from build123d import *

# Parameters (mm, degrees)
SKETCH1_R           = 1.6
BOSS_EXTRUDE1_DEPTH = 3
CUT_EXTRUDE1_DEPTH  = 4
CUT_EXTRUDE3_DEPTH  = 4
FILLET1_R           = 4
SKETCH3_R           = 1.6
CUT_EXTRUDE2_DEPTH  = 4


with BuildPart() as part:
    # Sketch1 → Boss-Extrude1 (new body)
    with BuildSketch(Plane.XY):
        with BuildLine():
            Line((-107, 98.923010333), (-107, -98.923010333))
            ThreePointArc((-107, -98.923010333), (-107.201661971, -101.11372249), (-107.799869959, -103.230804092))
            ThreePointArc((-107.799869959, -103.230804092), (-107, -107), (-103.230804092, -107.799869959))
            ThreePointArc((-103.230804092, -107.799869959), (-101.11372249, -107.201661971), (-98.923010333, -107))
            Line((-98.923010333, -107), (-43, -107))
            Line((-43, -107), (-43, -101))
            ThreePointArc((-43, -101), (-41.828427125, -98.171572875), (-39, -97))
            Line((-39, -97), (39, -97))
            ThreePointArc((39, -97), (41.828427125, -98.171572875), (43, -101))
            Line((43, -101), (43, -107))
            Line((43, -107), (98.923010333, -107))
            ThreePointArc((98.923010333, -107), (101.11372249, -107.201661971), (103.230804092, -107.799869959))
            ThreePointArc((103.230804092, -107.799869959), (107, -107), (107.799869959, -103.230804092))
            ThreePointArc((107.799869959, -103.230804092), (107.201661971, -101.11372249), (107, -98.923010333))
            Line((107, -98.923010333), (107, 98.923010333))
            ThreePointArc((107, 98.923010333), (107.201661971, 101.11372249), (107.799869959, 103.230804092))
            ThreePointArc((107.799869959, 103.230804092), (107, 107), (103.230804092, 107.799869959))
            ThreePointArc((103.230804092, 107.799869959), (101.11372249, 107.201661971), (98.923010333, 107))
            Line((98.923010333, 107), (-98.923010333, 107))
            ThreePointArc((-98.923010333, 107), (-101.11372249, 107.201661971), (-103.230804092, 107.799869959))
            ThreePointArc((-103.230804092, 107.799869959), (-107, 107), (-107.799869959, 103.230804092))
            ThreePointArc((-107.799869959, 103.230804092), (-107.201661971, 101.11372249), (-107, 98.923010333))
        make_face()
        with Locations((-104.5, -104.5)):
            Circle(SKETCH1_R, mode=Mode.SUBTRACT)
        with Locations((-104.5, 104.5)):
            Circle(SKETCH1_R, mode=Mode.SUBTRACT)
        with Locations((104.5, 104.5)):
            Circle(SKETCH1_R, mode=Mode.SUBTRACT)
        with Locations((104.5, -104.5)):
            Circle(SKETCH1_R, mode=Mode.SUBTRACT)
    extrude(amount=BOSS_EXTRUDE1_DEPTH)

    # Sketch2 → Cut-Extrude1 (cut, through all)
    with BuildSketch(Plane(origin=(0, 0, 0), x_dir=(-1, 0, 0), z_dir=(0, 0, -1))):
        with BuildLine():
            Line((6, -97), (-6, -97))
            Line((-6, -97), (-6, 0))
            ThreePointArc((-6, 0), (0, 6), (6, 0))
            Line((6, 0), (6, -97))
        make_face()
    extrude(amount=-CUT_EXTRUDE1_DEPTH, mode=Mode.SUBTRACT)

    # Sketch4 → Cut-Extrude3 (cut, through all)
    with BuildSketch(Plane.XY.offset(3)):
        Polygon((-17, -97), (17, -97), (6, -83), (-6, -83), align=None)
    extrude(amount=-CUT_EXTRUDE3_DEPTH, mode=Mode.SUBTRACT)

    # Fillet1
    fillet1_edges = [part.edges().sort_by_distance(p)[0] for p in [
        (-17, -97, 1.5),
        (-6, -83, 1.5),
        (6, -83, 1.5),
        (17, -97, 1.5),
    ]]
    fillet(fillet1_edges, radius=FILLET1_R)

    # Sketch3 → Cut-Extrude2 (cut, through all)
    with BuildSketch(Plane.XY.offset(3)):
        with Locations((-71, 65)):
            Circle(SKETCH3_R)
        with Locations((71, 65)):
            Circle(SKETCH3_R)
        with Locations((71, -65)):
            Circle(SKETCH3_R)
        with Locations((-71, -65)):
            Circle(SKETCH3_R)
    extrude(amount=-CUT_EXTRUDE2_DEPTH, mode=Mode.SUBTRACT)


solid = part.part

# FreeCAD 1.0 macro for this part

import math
import FreeCAD as App
import Part
import Sketcher
from FreeCAD import Vector


def edges_at(feature, points):
    """Names of the edges that pass closest to the given points."""
    edges = feature.Shape.Edges
    near = lambda p: min(range(len(edges)), key=lambda i: edges[i].distToShape(Part.Vertex(*p))[0])
    return sorted({f"Edge{near(p) + 1}" for p in points})

doc = App.newDocument("Part")
body = doc.addObject("PartDesign::Body", "Body")

sketch1 = doc.addObject("Sketcher::SketchObject", "Sketch")
body.addObject(sketch1)
sketch1.AttachmentSupport = (doc.XY_Plane, [""])
sketch1.MapMode = "FlatFace"
sketch1.addGeometry(Part.LineSegment(Vector(-107, 98.9, 0), Vector(-107, -98.9, 0)), False)
sketch1.addGeometry(Part.ArcOfCircle(Part.Circle(Vector(-119, -98.9, 0), Vector(0, 0, 1), 12), math.radians(-21), math.radians(0)), False)
sketch1.addGeometry(Part.ArcOfCircle(Part.Circle(Vector(-104.5, -104.5, 0), Vector(0, 0, 1), 3.5), math.radians(159), math.radians(291)), False)
sketch1.addGeometry(Part.ArcOfCircle(Part.Circle(Vector(-98.9, -119, 0), Vector(0, 0, 1), 12), math.radians(90), math.radians(111)), False)
sketch1.addGeometry(Part.LineSegment(Vector(-98.9, -107, 0), Vector(-43, -107, 0)), False)
sketch1.addGeometry(Part.LineSegment(Vector(-43, -107, 0), Vector(-43, -101, 0)), False)
sketch1.addGeometry(Part.ArcOfCircle(Part.Circle(Vector(-39, -101, 0), Vector(0, 0, 1), 4), math.radians(90), math.radians(180)), False)
sketch1.addGeometry(Part.LineSegment(Vector(-39, -97, 0), Vector(39, -97, 0)), False)
sketch1.addGeometry(Part.ArcOfCircle(Part.Circle(Vector(39, -101, 0), Vector(0, 0, 1), 4), math.radians(0), math.radians(90)), False)
sketch1.addGeometry(Part.LineSegment(Vector(43, -101, 0), Vector(43, -107, 0)), False)
sketch1.addGeometry(Part.LineSegment(Vector(43, -107, 0), Vector(98.9, -107, 0)), False)
sketch1.addGeometry(Part.ArcOfCircle(Part.Circle(Vector(98.9, -119, 0), Vector(0, 0, 1), 12), math.radians(69), math.radians(90)), False)
sketch1.addGeometry(Part.ArcOfCircle(Part.Circle(Vector(104.5, -104.5, 0), Vector(0, 0, 1), 3.5), math.radians(-111), math.radians(21)), False)
sketch1.addGeometry(Part.ArcOfCircle(Part.Circle(Vector(119, -98.9, 0), Vector(0, 0, 1), 12), math.radians(180), math.radians(201)), False)
sketch1.addGeometry(Part.LineSegment(Vector(107, -98.9, 0), Vector(107, 98.9, 0)), False)
sketch1.addGeometry(Part.ArcOfCircle(Part.Circle(Vector(119, 98.9, 0), Vector(0, 0, 1), 12), math.radians(159), math.radians(180)), False)
sketch1.addGeometry(Part.ArcOfCircle(Part.Circle(Vector(104.5, 104.5, 0), Vector(0, 0, 1), 3.5), math.radians(-21), math.radians(111)), False)
sketch1.addGeometry(Part.ArcOfCircle(Part.Circle(Vector(98.9, 119, 0), Vector(0, 0, 1), 12), math.radians(-90), math.radians(-69)), False)
sketch1.addGeometry(Part.LineSegment(Vector(98.9, 107, 0), Vector(-98.9, 107, 0)), False)
sketch1.addGeometry(Part.ArcOfCircle(Part.Circle(Vector(-98.9, 119, 0), Vector(0, 0, 1), 12), math.radians(-111), math.radians(-90)), False)
sketch1.addGeometry(Part.ArcOfCircle(Part.Circle(Vector(-104.5, 104.5, 0), Vector(0, 0, 1), 3.5), math.radians(69), math.radians(201)), False)
sketch1.addGeometry(Part.ArcOfCircle(Part.Circle(Vector(-119, 98.9, 0), Vector(0, 0, 1), 12), math.radians(0), math.radians(21)), False)
sketch1.addGeometry(Part.Circle(Vector(-104.5, -104.5, 0), Vector(0, 0, 1), 1.6), False)
sketch1.addGeometry(Part.Circle(Vector(104.5, -104.5, 0), Vector(0, 0, 1), 1.6), False)
sketch1.addGeometry(Part.Circle(Vector(-104.5, 104.5, 0), Vector(0, 0, 1), 1.6), False)
sketch1.addGeometry(Part.Circle(Vector(104.5, 104.5, 0), Vector(0, 0, 1), 1.6), False)
sketch1.addConstraint(Sketcher.Constraint("Tangent", 0, 2, 1, 2))
sketch1.addConstraint(Sketcher.Constraint("Tangent", 1, 1, 2, 1))
sketch1.addConstraint(Sketcher.Constraint("Tangent", 2, 2, 3, 2))
sketch1.addConstraint(Sketcher.Constraint("Tangent", 3, 1, 4, 1))
sketch1.addConstraint(Sketcher.Constraint("Coincident", 4, 2, 5, 1))
sketch1.addConstraint(Sketcher.Constraint("Tangent", 5, 2, 6, 2))
sketch1.addConstraint(Sketcher.Constraint("Tangent", 6, 1, 7, 1))
sketch1.addConstraint(Sketcher.Constraint("Tangent", 7, 2, 8, 2))
sketch1.addConstraint(Sketcher.Constraint("Tangent", 8, 1, 9, 1))
sketch1.addConstraint(Sketcher.Constraint("Coincident", 9, 2, 10, 1))
sketch1.addConstraint(Sketcher.Constraint("Tangent", 10, 2, 11, 2))
sketch1.addConstraint(Sketcher.Constraint("Tangent", 11, 1, 12, 1))
sketch1.addConstraint(Sketcher.Constraint("Tangent", 12, 2, 13, 2))
sketch1.addConstraint(Sketcher.Constraint("Tangent", 13, 1, 14, 1))
sketch1.addConstraint(Sketcher.Constraint("Tangent", 14, 2, 15, 2))
sketch1.addConstraint(Sketcher.Constraint("Tangent", 15, 1, 16, 1))
sketch1.addConstraint(Sketcher.Constraint("Tangent", 16, 2, 17, 2))
sketch1.addConstraint(Sketcher.Constraint("Tangent", 17, 1, 18, 1))
sketch1.addConstraint(Sketcher.Constraint("Tangent", 18, 2, 19, 2))
sketch1.addConstraint(Sketcher.Constraint("Tangent", 19, 1, 20, 1))
sketch1.addConstraint(Sketcher.Constraint("Tangent", 20, 2, 21, 2))
sketch1.addConstraint(Sketcher.Constraint("Tangent", 21, 1, 0, 1))
sketch1.addConstraint(Sketcher.Constraint("Vertical", 0))
sketch1.addConstraint(Sketcher.Constraint("Horizontal", 4))
sketch1.addConstraint(Sketcher.Constraint("Vertical", 5))
sketch1.addConstraint(Sketcher.Constraint("Horizontal", 7))
sketch1.addConstraint(Sketcher.Constraint("Vertical", 9))
sketch1.addConstraint(Sketcher.Constraint("Horizontal", 10))
sketch1.addConstraint(Sketcher.Constraint("Vertical", 14))
sketch1.addConstraint(Sketcher.Constraint("Horizontal", 18))
sketch1.addConstraint(Sketcher.Constraint("Coincident", 22, 3, 2, 3))
sketch1.addConstraint(Sketcher.Constraint("Coincident", 23, 3, 12, 3))
sketch1.addConstraint(Sketcher.Constraint("Coincident", 24, 3, 20, 3))
sketch1.addConstraint(Sketcher.Constraint("Coincident", 25, 3, 16, 3))
sketch1.addConstraint(Sketcher.Constraint("Equal", 1, 3))
sketch1.addConstraint(Sketcher.Constraint("Equal", 6, 8))
sketch1.addConstraint(Sketcher.Constraint("Equal", 3, 11))
sketch1.addConstraint(Sketcher.Constraint("Equal", 2, 12))
sketch1.addConstraint(Sketcher.Constraint("Equal", 11, 13))
sketch1.addConstraint(Sketcher.Constraint("Equal", 13, 15))
sketch1.addConstraint(Sketcher.Constraint("Equal", 12, 16))
sketch1.addConstraint(Sketcher.Constraint("Equal", 15, 17))
sketch1.addConstraint(Sketcher.Constraint("Equal", 17, 19))
sketch1.addConstraint(Sketcher.Constraint("Equal", 16, 20))
sketch1.addConstraint(Sketcher.Constraint("Equal", 19, 21))
sketch1.addConstraint(Sketcher.Constraint("Equal", 22, 23))
sketch1.addConstraint(Sketcher.Constraint("Equal", 23, 24))
sketch1.addConstraint(Sketcher.Constraint("Equal", 24, 25))
sketch1.addConstraint(Sketcher.Constraint("Symmetric", 1, 3, 15, 3, -1, 1))
sketch1.addConstraint(Sketcher.Constraint("Symmetric", 3, 3, 17, 3, -1, 1))
sketch1.addConstraint(Sketcher.Constraint("Symmetric", 11, 3, 19, 3, -1, 1))
sketch1.addConstraint(Sketcher.Constraint("Symmetric", 2, 3, 12, 3, -2))
sketch1.addConstraint(Sketcher.Constraint("Horizontal", 16, 3, 20, 3))
sketch1.addConstraint(Sketcher.Constraint("Equal", 4, 10))
sketch1.addConstraint(Sketcher.Constraint("Equal", 18, 0))
sketch1.addConstraint(Sketcher.Constraint("Radius", 1, 12.0))
sketch1.addConstraint(Sketcher.Constraint("Radius", 6, 4.0))
sketch1.addConstraint(Sketcher.Constraint("Diameter", 22, 3.2))
sketch1.addConstraint(Sketcher.Constraint("DistanceX", 7, 1, 7, 2, 78.0))
sketch1.addConstraint(Sketcher.Constraint("DistanceY", 5, 1, 5, 2, 6.0))
sketch1.addConstraint(Sketcher.Constraint("DistanceX", 1, 3, -1, 1, 119.0))
sketch1.addConstraint(Sketcher.Constraint("DistanceY", 3, 3, -1, 1, 119.0))
sketch1.addConstraint(Sketcher.Constraint("DistanceX", 2, 3, 12, 3, 209.0))
sketch1.addConstraint(Sketcher.Constraint("Radius", 2, 3.535534))
pad1 = doc.addObject("PartDesign::Pad", "Pad")
body.addObject(pad1)
pad1.Profile = sketch1
pad1.Length = 3

sketch2 = doc.addObject("Sketcher::SketchObject", "Sketch001")
body.addObject(sketch2)
sketch2.AttachmentSupport = (doc.XY_Plane, [""])
sketch2.MapMode = "FlatFace"
sketch2.addGeometry(Part.LineSegment(Vector(6, -97, 0), Vector(-6, -97, 0)), False)
sketch2.addGeometry(Part.LineSegment(Vector(-6, -97, 0), Vector(-6, 0, 0)), False)
sketch2.addGeometry(Part.ArcOfCircle(Part.Circle(Vector(0, 0, 0), Vector(0, 0, 1), 6), math.radians(0), math.radians(180)), False)
sketch2.addGeometry(Part.LineSegment(Vector(6, 0, 0), Vector(6, -97, 0)), False)
sketch2.addConstraint(Sketcher.Constraint("Coincident", 0, 2, 1, 1))
sketch2.addConstraint(Sketcher.Constraint("Tangent", 1, 2, 2, 2))
sketch2.addConstraint(Sketcher.Constraint("Tangent", 2, 1, 3, 1))
sketch2.addConstraint(Sketcher.Constraint("Coincident", 3, 2, 0, 1))
sketch2.addConstraint(Sketcher.Constraint("Horizontal", 0))
sketch2.addConstraint(Sketcher.Constraint("Vertical", 1))
sketch2.addConstraint(Sketcher.Constraint("Vertical", 3))
sketch2.addConstraint(Sketcher.Constraint("Coincident", 2, 3, -1, 1))
sketch2.addConstraint(Sketcher.Constraint("Radius", 2, 6.0))
sketch2.addConstraint(Sketcher.Constraint("DistanceY", 1, 1, 1, 2, 97.0))
pocket1 = doc.addObject("PartDesign::Pocket", "Pocket")
body.addObject(pocket1)
pocket1.Profile = sketch2
pocket1.Type = "ThroughAll"
pocket1.Reversed = True

sketch3 = doc.addObject("Sketcher::SketchObject", "Sketch002")
body.addObject(sketch3)
sketch3.AttachmentSupport = (doc.XY_Plane, [""])
sketch3.MapMode = "FlatFace"
sketch3.AttachmentOffset = App.Placement(Vector(0, 0, 3), App.Rotation())
sketch3.addGeometry(Part.LineSegment(Vector(-17, -97, 0), Vector(17, -97, 0)), False)
sketch3.addGeometry(Part.LineSegment(Vector(17, -97, 0), Vector(6, -83, 0)), False)
sketch3.addGeometry(Part.LineSegment(Vector(6, -83, 0), Vector(-6, -83, 0)), False)
sketch3.addGeometry(Part.LineSegment(Vector(-6, -83, 0), Vector(-17, -97, 0)), False)
sketch3.addConstraint(Sketcher.Constraint("Coincident", 0, 2, 1, 1))
sketch3.addConstraint(Sketcher.Constraint("Coincident", 1, 2, 2, 1))
sketch3.addConstraint(Sketcher.Constraint("Coincident", 2, 2, 3, 1))
sketch3.addConstraint(Sketcher.Constraint("Coincident", 3, 2, 0, 1))
sketch3.addConstraint(Sketcher.Constraint("Horizontal", 0))
sketch3.addConstraint(Sketcher.Constraint("Horizontal", 2))
sketch3.addConstraint(Sketcher.Constraint("Equal", 1, 3))
sketch3.addConstraint(Sketcher.Constraint("DistanceX", 0, 1, 0, 2, 34.0))
sketch3.addConstraint(Sketcher.Constraint("DistanceX", 2, 2, 2, 1, 12.0))
sketch3.addConstraint(Sketcher.Constraint("DistanceX", -1, 1, 0, 2, 17.0))
sketch3.addConstraint(Sketcher.Constraint("DistanceY", 0, 2, -1, 1, 97.0))
sketch3.addConstraint(Sketcher.Constraint("DistanceY", 1, 2, -1, 1, 83.0))
pocket2 = doc.addObject("PartDesign::Pocket", "Pocket001")
body.addObject(pocket2)
pocket2.Profile = sketch3
pocket2.Type = "ThroughAll"
doc.recompute()

fillet = doc.addObject("PartDesign::Fillet", "Fillet")
body.addObject(fillet)
fillet.Base = (pocket2, edges_at(pocket2, [
    (-17, -97, 1.5),
    (-6, -83, 1.5),
    (6, -83, 1.5),
    (17, -97, 1.5),
]))
fillet.Radius = 4

sketch4 = doc.addObject("Sketcher::SketchObject", "Sketch003")
body.addObject(sketch4)
sketch4.AttachmentSupport = (doc.XY_Plane, [""])
sketch4.MapMode = "FlatFace"
sketch4.AttachmentOffset = App.Placement(Vector(0, 0, 3), App.Rotation())
sketch4.addGeometry(Part.Circle(Vector(-71, 65, 0), Vector(0, 0, 1), 1.6), False)
sketch4.addGeometry(Part.Circle(Vector(71, 65, 0), Vector(0, 0, 1), 1.6), False)
sketch4.addGeometry(Part.Circle(Vector(71, -65, 0), Vector(0, 0, 1), 1.6), False)
sketch4.addGeometry(Part.Circle(Vector(-71, -65, 0), Vector(0, 0, 1), 1.6), False)
sketch4.addConstraint(Sketcher.Constraint("Equal", 0, 1))
sketch4.addConstraint(Sketcher.Constraint("Equal", 1, 2))
sketch4.addConstraint(Sketcher.Constraint("Equal", 2, 3))
sketch4.addConstraint(Sketcher.Constraint("Symmetric", 0, 3, 2, 3, -1, 1))
sketch4.addConstraint(Sketcher.Constraint("Symmetric", 1, 3, 3, 3, -1, 1))
sketch4.addConstraint(Sketcher.Constraint("Symmetric", 0, 3, 1, 3, -2))
sketch4.addConstraint(Sketcher.Constraint("Diameter", 0, 3.2))
sketch4.addConstraint(Sketcher.Constraint("DistanceX", 0, 3, -1, 1, 71.0))
sketch4.addConstraint(Sketcher.Constraint("DistanceY", -1, 1, 0, 3, 65.0))
pocket3 = doc.addObject("PartDesign::Pocket", "Pocket002")
body.addObject(pocket3)
pocket3.Profile = sketch4
pocket3.Type = "ThroughAll"

doc.recompute()
